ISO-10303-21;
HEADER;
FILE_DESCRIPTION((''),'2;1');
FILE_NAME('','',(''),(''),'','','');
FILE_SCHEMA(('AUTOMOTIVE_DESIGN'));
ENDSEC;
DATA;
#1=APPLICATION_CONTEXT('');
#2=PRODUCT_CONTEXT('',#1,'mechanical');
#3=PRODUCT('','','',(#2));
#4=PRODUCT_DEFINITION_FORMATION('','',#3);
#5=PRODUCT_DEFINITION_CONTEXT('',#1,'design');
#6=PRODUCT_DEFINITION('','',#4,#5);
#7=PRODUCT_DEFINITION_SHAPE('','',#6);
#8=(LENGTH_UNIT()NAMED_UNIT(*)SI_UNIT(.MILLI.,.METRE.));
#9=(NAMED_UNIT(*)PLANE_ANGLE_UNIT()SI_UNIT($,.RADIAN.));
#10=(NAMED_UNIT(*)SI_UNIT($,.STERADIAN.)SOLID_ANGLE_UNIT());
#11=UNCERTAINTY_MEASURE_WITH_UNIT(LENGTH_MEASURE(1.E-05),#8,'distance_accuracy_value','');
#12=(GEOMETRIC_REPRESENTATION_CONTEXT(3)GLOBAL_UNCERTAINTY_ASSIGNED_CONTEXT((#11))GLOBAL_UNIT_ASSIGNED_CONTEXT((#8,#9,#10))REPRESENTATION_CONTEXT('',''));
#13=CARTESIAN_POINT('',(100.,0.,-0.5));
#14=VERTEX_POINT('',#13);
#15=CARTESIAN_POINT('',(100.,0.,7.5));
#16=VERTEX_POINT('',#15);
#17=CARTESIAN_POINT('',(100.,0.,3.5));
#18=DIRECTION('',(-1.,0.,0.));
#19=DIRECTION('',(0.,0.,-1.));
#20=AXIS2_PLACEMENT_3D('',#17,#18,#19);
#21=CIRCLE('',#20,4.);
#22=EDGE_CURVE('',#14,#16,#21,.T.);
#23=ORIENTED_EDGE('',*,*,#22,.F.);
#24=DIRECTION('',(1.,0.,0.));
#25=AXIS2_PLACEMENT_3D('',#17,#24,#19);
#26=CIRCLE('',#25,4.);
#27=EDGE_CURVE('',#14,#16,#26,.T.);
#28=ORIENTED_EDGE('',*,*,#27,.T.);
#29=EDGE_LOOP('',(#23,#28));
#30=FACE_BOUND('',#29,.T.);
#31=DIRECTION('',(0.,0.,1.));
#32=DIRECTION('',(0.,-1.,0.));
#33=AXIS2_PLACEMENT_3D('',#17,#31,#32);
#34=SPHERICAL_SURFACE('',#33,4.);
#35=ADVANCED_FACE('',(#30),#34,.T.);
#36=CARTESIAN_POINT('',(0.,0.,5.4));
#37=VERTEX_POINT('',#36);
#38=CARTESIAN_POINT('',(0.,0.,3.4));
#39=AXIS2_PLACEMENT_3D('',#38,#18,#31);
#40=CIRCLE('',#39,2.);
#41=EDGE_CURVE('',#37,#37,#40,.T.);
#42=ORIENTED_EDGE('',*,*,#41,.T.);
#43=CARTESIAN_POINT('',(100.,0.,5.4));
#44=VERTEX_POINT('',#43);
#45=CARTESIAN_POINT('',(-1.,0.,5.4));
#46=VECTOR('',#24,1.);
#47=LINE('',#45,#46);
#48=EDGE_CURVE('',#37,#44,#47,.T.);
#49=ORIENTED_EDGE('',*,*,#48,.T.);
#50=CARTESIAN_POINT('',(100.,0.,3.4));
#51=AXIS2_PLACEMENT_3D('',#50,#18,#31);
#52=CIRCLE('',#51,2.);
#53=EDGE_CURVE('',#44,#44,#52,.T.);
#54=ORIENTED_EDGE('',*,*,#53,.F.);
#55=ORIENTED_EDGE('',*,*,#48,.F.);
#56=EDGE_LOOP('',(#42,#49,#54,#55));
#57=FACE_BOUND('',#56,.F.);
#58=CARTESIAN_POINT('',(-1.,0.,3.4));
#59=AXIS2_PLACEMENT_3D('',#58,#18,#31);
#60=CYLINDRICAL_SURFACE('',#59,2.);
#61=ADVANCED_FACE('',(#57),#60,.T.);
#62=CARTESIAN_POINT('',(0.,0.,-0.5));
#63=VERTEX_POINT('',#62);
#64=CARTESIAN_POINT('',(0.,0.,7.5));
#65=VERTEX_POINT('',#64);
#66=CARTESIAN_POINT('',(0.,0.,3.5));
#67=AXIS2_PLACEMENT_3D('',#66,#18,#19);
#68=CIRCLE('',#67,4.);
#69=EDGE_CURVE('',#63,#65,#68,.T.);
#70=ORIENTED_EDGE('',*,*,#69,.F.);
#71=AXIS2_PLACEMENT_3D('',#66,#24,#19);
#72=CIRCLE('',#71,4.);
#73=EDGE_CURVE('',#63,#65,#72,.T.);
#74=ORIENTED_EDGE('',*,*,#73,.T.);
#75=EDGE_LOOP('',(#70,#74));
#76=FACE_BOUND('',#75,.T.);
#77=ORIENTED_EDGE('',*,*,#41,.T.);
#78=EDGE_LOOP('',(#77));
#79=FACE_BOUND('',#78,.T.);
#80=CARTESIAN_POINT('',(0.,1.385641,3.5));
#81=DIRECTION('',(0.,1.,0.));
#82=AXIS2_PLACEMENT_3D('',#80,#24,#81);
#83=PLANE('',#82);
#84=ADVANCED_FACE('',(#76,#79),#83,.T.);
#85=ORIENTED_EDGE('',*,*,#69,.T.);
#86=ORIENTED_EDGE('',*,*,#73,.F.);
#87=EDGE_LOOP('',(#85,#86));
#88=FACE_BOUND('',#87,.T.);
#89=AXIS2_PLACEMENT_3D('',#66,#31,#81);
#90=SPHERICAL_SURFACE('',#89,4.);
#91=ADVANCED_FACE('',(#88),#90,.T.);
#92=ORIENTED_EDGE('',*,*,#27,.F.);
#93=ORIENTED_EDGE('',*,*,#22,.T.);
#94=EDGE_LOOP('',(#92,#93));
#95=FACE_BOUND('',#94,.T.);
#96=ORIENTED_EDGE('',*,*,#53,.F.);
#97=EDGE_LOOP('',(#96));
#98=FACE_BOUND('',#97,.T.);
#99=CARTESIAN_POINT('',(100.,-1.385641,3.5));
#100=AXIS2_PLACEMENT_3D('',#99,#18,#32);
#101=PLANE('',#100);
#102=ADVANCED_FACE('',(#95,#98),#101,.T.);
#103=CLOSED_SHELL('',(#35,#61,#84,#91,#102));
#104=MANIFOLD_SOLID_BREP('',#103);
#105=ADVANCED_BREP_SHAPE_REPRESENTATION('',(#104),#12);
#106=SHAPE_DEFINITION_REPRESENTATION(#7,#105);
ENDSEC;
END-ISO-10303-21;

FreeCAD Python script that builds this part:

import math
import FreeCAD as App
import Part
import Sketcher
from FreeCAD import Vector
Q = App.Units.Quantity

doc = App.newDocument("Part")
params = doc.addObject("Spreadsheet::Sheet", "Params")
for row, (alias, value) in enumerate([
    ("sketch1_diameter", "4 mm"),
    ("pad1_length", "102 mm"),
    ("sketch2_radius", "4 mm"),
    ("revolution_angle", "180 deg"),
    ("sketch3_radius", "4 mm"),
    ("revolution2_angle", "180 deg"),
], start=1):
    params.set(f"A{row}", alias)
    params.set(f"B{row}", "=" + value)
    params.setAlias(f"B{row}", alias)

body = doc.addObject("PartDesign::Body", "Body")

# Sketch on YZ plane
sketch1 = body.newObject("Sketcher::SketchObject", "Sketch")
sketch1.AttachmentSupport = (doc.getObject("YZ_Plane"), [""])
sketch1.MapMode = "FlatFace"
sketch1.AttachmentOffset = App.Placement(Vector(0, 0, -1), App.Rotation())
sketch1.addGeometry(Part.Circle(Vector(50, 3.4, 0), Vector(0, 0, 1), 2), False)
sketch1.addConstraint(Sketcher.Constraint("Diameter", 0, Q("4 mm")))
sketch1.addConstraint(Sketcher.Constraint("DistanceX", -1, 1, 0, 3, Q("50 mm")))
sketch1.addConstraint(Sketcher.Constraint("DistanceY", -1, 1, 0, 3, Q("3.4 mm")))
sketch1.setExpression("Constraints[0]", "Params.sketch1_diameter")
pad1 = body.newObject("PartDesign::Pad", "Pad")
pad1.Profile = sketch1
pad1.setExpression("Length", "Params.pad1_length")
body2 = doc.addObject("PartDesign::Body", "Body001")

# Sketch on YZ plane
sketch2 = body2.newObject("Sketcher::SketchObject", "Sketch001")
sketch2.AttachmentSupport = (doc.getObject("YZ_Plane001"), [""])
sketch2.MapMode = "FlatFace"
sketch2.addGeometry(Part.ArcOfCircle(Part.Circle(Vector(50, 3.5, 0), Vector(0, 0, 1), 4), math.radians(-90), math.radians(90)), False)
sketch2.addGeometry(Part.LineSegment(Vector(50, 7.5, 0), Vector(50, -0.5, 0)), False)
sketch2.addGeometry(Part.LineSegment(Vector(50, -0.5, 0), Vector(50, 7.5, 0)), True)  # axis
sketch2.addConstraint(Sketcher.Constraint("Coincident", 0, 1, 1, 2))
sketch2.addConstraint(Sketcher.Constraint("Coincident", 1, 1, 0, 2))
sketch2.addConstraint(Sketcher.Constraint("Vertical", 1))
sketch2.addConstraint(Sketcher.Constraint("Vertical", 2))
sketch2.addConstraint(Sketcher.Constraint("Coincident", 2, 1, 0, 1))
sketch2.addConstraint(Sketcher.Constraint("Equal", 1, 2))
sketch2.addConstraint(Sketcher.Constraint("Radius", 0, Q("4 mm")))
sketch2.addConstraint(Sketcher.Constraint("DistanceX", -1, 1, 0, 3, Q("50 mm")))
sketch2.addConstraint(Sketcher.Constraint("DistanceX", -1, 1, 0, 1, Q("50 mm")))
sketch2.addConstraint(Sketcher.Constraint("DistanceY", -1, 1, 0, 3, Q("3.5 mm")))
sketch2.setExpression("Constraints[6]", "Params.sketch2_radius")
revolution = body2.newObject("PartDesign::Revolution", "Revolution")
revolution.Profile = sketch2
revolution.ReferenceAxis = (sketch2, ["Axis0"])
revolution.setExpression("Angle", "Params.revolution_angle")
body3 = doc.addObject("PartDesign::Body", "Body002")

# Sketch on YZ plane
sketch3 = body3.newObject("Sketcher::SketchObject", "Sketch002")
sketch3.AttachmentSupport = (doc.getObject("YZ_Plane002"), [""])
sketch3.MapMode = "FlatFace"
sketch3.AttachmentOffset = App.Placement(Vector(0, 0, 100), App.Rotation())
sketch3.addGeometry(Part.ArcOfCircle(Part.Circle(Vector(50, 3.5, 0), Vector(0, 0, 1), 4), math.radians(90), math.radians(270)), False)
sketch3.addGeometry(Part.LineSegment(Vector(50, 7.5, 0), Vector(50, -0.5, 0)), False)
sketch3.addGeometry(Part.LineSegment(Vector(50, -0.5, 0), Vector(50, 7.5, 0)), True)  # axis
sketch3.addConstraint(Sketcher.Constraint("Coincident", 0, 1, 1, 1))
sketch3.addConstraint(Sketcher.Constraint("Coincident", 1, 2, 0, 2))
sketch3.addConstraint(Sketcher.Constraint("Vertical", 1))
sketch3.addConstraint(Sketcher.Constraint("Vertical", 2))
sketch3.addConstraint(Sketcher.Constraint("Coincident", 2, 1, 1, 2))
sketch3.addConstraint(Sketcher.Constraint("Equal", 1, 2))
sketch3.addConstraint(Sketcher.Constraint("Radius", 0, Q("4 mm")))
sketch3.addConstraint(Sketcher.Constraint("DistanceX", -1, 1, 0, 3, Q("50 mm")))
sketch3.addConstraint(Sketcher.Constraint("DistanceX", -1, 1, 0, 1, Q("50 mm")))
sketch3.addConstraint(Sketcher.Constraint("DistanceY", -1, 1, 0, 3, Q("3.5 mm")))
sketch3.setExpression("Constraints[6]", "Params.sketch3_radius")
revolution2 = body3.newObject("PartDesign::Revolution", "Revolution001")
revolution2.Profile = sketch3
revolution2.ReferenceAxis = (sketch3, ["Axis0"])
revolution2.setExpression("Angle", "Params.revolution2_angle")
doc.recompute()

boolean = body3.newObject("PartDesign::Boolean", "Boolean")
boolean.Type = "Fuse"
boolean.addObjects([body])
doc.recompute()

boolean2 = body3.newObject("PartDesign::Boolean", "Boolean001")
boolean2.Type = "Fuse"
boolean2.addObjects([body2])
body4 = doc.addObject("PartDesign::Body", "Body003")
doc.recompute()

body3.Placement = App.Placement(Vector(0, -50, 0), App.Rotation(Vector(0, 0, 1), 0))
boolean3 = body4.newObject("PartDesign::Boolean", "Boolean002")
boolean3.Type = "Fuse"
boolean3.addObjects([body3])

doc.recompute()
